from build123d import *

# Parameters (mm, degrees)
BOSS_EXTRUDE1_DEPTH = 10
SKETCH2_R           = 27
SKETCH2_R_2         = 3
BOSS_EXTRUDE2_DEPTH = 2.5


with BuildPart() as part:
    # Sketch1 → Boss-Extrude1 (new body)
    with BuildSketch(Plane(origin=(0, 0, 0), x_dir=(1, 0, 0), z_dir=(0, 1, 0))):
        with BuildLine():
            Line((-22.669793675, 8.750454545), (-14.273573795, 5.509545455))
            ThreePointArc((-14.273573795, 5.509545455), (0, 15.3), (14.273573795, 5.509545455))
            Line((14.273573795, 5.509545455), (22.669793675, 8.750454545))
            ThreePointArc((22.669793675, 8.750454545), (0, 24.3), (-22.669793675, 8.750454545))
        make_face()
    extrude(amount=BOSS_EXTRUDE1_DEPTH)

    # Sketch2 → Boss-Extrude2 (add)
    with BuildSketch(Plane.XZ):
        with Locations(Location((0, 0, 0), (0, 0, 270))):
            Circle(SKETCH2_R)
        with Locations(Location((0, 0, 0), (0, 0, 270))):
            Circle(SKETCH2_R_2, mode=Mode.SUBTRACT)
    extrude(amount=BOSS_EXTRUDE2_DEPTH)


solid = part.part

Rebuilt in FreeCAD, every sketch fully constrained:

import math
import FreeCAD as App
import Part
import Sketcher

V = App.Vector

doc = App.newDocument("Part")
body = doc.addObject("PartDesign::Body", "Body")

sketch1 = doc.addObject("Sketcher::SketchObject", "Sketch")
body.addObject(sketch1)
sketch1.AttachmentSupport = (doc.XZ_Plane, [""])
sketch1.MapMode = "FlatFace"
sketch1.addGeometry([
    Part.LineSegment(V(-23, -9, 0), V(-14, -6, 0)),
    Part.ArcOfCircle(Part.Circle(V(0, 0, 0), V(0, 0, 1), 15), math.radians(-159), math.radians(-21)),
    Part.LineSegment(V(14, -6, 0), V(23, -9, 0)),
    Part.ArcOfCircle(Part.Circle(V(0, 0, 0), V(0, 0, 1), 24), math.radians(-159), math.radians(-21)),
], False)
sketch1.addConstraint([
    Sketcher.Constraint("Coincident", 0, 2, 1, 1),
    Sketcher.Constraint("Coincident", 1, 2, 2, 1),
    Sketcher.Constraint("Coincident", 2, 2, 3, 2),
    Sketcher.Constraint("Coincident", 3, 1, 0, 1),
    Sketcher.Constraint("Coincident", 1, 3, -1, 1),
    Sketcher.Constraint("Coincident", 3, 3, -1, 1),
    Sketcher.Constraint("Horizontal", 0, 2, 1, 2),
    Sketcher.Constraint("Horizontal", 2, 2, 3, 1),
    Sketcher.Constraint("Radius", 1, 15.3),
    Sketcher.Constraint("Radius", 3, 24.3),
    Sketcher.Constraint("DistanceX", 1, 2, 2, 2, 8.39622),
    Sketcher.Constraint("DistanceX", 0, 2, -1, 1, 14.273574),
])
pad1 = doc.addObject("PartDesign::Pad", "Pad")
body.addObject(pad1)
pad1.Profile = sketch1
pad1.Length = 10
pad1.Reversed = True

sketch2 = doc.addObject("Sketcher::SketchObject", "Sketch001")
body.addObject(sketch2)
sketch2.AttachmentSupport = (doc.XZ_Plane, [""])
sketch2.MapMode = "FlatFace"
sketch2.addGeometry([
    Part.Circle(V(0, 0, 0), V(0, 0, 1), 27),
    Part.Circle(V(0, 0, 0), V(0, 0, 1), 3),
], False)
sketch2.addConstraint([
    Sketcher.Constraint("Coincident", 0, 3, -1, 1),
    Sketcher.Constraint("Coincident", 1, 3, -1, 1),
    Sketcher.Constraint("Diameter", 0, 54.0),
    Sketcher.Constraint("Diameter", 1, 6.0),
])
pad2 = doc.addObject("PartDesign::Pad", "Pad001")
body.addObject(pad2)
pad2.Profile = sketch2
pad2.Length = 2.5

doc.recompute()
